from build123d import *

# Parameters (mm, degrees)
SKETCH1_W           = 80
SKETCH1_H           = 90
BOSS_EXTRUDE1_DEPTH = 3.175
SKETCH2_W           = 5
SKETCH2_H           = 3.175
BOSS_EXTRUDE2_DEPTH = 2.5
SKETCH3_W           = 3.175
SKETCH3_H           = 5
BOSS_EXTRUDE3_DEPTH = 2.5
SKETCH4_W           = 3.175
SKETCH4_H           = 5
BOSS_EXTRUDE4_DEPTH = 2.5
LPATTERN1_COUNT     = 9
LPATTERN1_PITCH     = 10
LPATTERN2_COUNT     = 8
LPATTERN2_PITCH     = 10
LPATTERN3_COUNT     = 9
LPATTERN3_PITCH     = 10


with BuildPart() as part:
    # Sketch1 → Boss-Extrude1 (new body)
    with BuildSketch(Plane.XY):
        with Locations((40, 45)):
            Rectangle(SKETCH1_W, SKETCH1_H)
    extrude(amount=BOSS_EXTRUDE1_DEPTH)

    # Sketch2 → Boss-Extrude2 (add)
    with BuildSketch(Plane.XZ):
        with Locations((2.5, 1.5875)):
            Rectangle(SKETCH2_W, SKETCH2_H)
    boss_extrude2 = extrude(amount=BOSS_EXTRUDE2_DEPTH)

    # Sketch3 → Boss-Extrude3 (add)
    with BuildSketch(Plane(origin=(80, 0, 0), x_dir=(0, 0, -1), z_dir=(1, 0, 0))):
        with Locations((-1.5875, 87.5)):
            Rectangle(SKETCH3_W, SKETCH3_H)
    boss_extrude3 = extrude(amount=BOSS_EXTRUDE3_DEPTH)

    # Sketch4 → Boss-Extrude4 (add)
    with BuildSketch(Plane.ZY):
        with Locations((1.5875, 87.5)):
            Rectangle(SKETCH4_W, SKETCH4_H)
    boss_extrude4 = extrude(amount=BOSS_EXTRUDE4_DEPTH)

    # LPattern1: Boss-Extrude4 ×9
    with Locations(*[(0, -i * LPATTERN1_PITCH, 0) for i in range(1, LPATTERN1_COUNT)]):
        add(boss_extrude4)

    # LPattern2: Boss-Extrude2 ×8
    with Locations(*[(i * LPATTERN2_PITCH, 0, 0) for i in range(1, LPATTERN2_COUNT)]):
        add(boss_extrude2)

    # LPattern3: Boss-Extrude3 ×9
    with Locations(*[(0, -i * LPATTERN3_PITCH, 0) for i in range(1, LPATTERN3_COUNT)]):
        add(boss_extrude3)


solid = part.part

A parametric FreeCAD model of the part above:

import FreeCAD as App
import Part
import Sketcher

V = App.Vector
Q = App.Units.Quantity


def add_polygon(sketch, points):
    """Adds a closed chain of lines whose ends are joined by coincident constraints."""
    first, n = sketch.GeometryCount, len(points)
    for a, b in zip(points, points[1:] + points[:1]):
        sketch.addGeometry(Part.LineSegment(App.Vector(*a, 0), App.Vector(*b, 0)), False)
    for i in range(n):
        sketch.addConstraint(Sketcher.Constraint("Coincident", first + i, 2, first + (i + 1) % n, 1))

doc = App.newDocument("Part")
body = doc.addObject("PartDesign::Body", "Body")

sketch1 = body.newObject("Sketcher::SketchObject", "Sketch")
sketch1.AttachmentSupport = (doc.getObject("XY_Plane"), [""])
sketch1.MapMode = "FlatFace"
add_polygon(sketch1, [(0, 90), (0, 0), (80, 0), (80, 90)])
sketch1.addConstraint([
    Sketcher.Constraint("Vertical", 0),
    Sketcher.Constraint("Horizontal", 1),
    Sketcher.Constraint("Vertical", 2),
    Sketcher.Constraint("Horizontal", 3),
    Sketcher.Constraint("Coincident", 0, 2, -1, 1),
    Sketcher.Constraint("DistanceX", 1, 1, 1, 2, Q("80 mm")),
    Sketcher.Constraint("DistanceY", 0, 2, 0, 1, Q("90 mm")),
])
pad1 = body.newObject("PartDesign::Pad", "Pad")
pad1.Profile = sketch1
pad1.Length = 3.175

sketch2 = body.newObject("Sketcher::SketchObject", "Sketch001")
sketch2.AttachmentSupport = (doc.getObject("XZ_Plane"), [""])
sketch2.MapMode = "FlatFace"
add_polygon(sketch2, [(0, 3.2), (0, 0), (5, 0), (5, 3.2)])
sketch2.addConstraint([
    Sketcher.Constraint("Vertical", 0),
    Sketcher.Constraint("Horizontal", 1),
    Sketcher.Constraint("Vertical", 2),
    Sketcher.Constraint("Horizontal", 3),
    Sketcher.Constraint("Coincident", 0, 2, -1, 1),
    Sketcher.Constraint("DistanceX", 1, 1, 1, 2, Q("5 mm")),
    Sketcher.Constraint("DistanceY", 0, 2, 0, 1, Q("3.175 mm")),
])
pad2 = body.newObject("PartDesign::Pad", "Pad001")
pad2.Profile = sketch2
pad2.Length = 2.5

sketch3 = body.newObject("Sketcher::SketchObject", "Sketch002")
sketch3.AttachmentSupport = (doc.getObject("YZ_Plane"), [""])
sketch3.MapMode = "FlatFace"
sketch3.AttachmentOffset = App.Placement(V(0, 0, 80), App.Rotation())
add_polygon(sketch3, [(90, 3.2), (85, 3.2), (85, 0), (90, 0)])
sketch3.addConstraint([
    Sketcher.Constraint("Horizontal", 0),
    Sketcher.Constraint("Vertical", 1),
    Sketcher.Constraint("Horizontal", 2),
    Sketcher.Constraint("Vertical", 3),
    Sketcher.Constraint("PointOnObject", 1, 2, -1),
    Sketcher.Constraint("DistanceX", 0, 2, 0, 1, Q("5 mm")),
    Sketcher.Constraint("DistanceX", -1, 1, 0, 2, Q("85 mm")),
    Sketcher.Constraint("DistanceY", 1, 2, 1, 1, Q("3.175 mm")),
])
pad3 = body.newObject("PartDesign::Pad", "Pad002")
pad3.Profile = sketch3
pad3.Length = 2.5

sketch4 = body.newObject("Sketcher::SketchObject", "Sketch003")
sketch4.AttachmentSupport = (doc.getObject("YZ_Plane"), [""])
sketch4.MapMode = "FlatFace"
add_polygon(sketch4, [(90, 0), (85, 0), (85, 3.2), (90, 3.2)])
sketch4.addConstraint([
    Sketcher.Constraint("Horizontal", 0),
    Sketcher.Constraint("Vertical", 1),
    Sketcher.Constraint("Horizontal", 2),
    Sketcher.Constraint("Vertical", 3),
    Sketcher.Constraint("PointOnObject", 0, 2, -1),
    Sketcher.Constraint("DistanceX", 0, 2, 0, 1, Q("5 mm")),
    Sketcher.Constraint("DistanceX", -1, 1, 0, 2, Q("85 mm")),
    Sketcher.Constraint("DistanceY", 1, 1, 1, 2, Q("3.175 mm")),
])
pad4 = body.newObject("PartDesign::Pad", "Pad003")
pad4.Profile = sketch4
pad4.Length = 2.5
pad4.Reversed = True
doc.recompute()

linearpattern = body.newObject("PartDesign::LinearPattern", "LinearPattern")
linearpattern.Originals = [pad4]
linearpattern.Direction = (doc.getObject("Y_Axis"), [""])
linearpattern.Mode = "offset"
linearpattern.Offset = 10
linearpattern.Occurrences = 9
linearpattern.Reversed = True
body.Tip = linearpattern
doc.recompute()

linearpattern2 = body.newObject("PartDesign::LinearPattern", "LinearPattern001")
linearpattern2.Originals = [pad2]
linearpattern2.Direction = (doc.getObject("X_Axis"), [""])
linearpattern2.Mode = "offset"
linearpattern2.Offset = 10
linearpattern2.Occurrences = 8
body.Tip = linearpattern2
doc.recompute()

linearpattern3 = body.newObject("PartDesign::LinearPattern", "LinearPattern002")
linearpattern3.Originals = [pad3]
linearpattern3.Direction = (doc.getObject("Y_Axis"), [""])
linearpattern3.Mode = "offset"
linearpattern3.Offset = 10
linearpattern3.Occurrences = 9
linearpattern3.Reversed = True
body.Tip = linearpattern3

doc.recompute()
